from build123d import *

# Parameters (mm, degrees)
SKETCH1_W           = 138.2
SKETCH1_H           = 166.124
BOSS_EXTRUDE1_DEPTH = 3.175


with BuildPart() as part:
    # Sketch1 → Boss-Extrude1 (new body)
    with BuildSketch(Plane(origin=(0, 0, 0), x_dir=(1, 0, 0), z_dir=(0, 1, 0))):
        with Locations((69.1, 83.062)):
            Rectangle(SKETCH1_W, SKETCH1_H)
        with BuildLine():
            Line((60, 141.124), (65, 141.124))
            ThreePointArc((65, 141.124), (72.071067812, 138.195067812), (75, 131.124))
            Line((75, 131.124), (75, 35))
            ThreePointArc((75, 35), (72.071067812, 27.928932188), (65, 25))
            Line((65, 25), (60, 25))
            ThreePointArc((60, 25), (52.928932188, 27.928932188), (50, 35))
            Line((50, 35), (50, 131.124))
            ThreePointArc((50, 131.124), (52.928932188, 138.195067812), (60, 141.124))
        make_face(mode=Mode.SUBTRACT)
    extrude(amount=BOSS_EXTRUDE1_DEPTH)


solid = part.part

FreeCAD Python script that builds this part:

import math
import FreeCAD as App
import Part
import Sketcher
from FreeCAD import Vector
Q = App.Units.Quantity

doc = App.newDocument("Part")
body = doc.addObject("PartDesign::Body", "Body")

sketch1 = body.newObject("Sketcher::SketchObject", "Sketch")
sketch1.AttachmentSupport = (doc.getObject("XZ_Plane"), [""])
sketch1.MapMode = "FlatFace"
sketch1.addGeometry([
    Part.LineSegment(Vector(0, -166.124, 0), Vector(0, 0, 0)),
    Part.LineSegment(Vector(0, 0, 0), Vector(138.2, 0, 0)),
    Part.LineSegment(Vector(138.2, 0, 0), Vector(138.2, -166.124, 0)),
    Part.LineSegment(Vector(138.2, -166.124, 0), Vector(0, -166.124, 0)),
    Part.ArcOfCircle(Part.Circle(Vector(60, -131.124, 0), Vector(0, 0, 1), 10), math.radians(180), math.radians(270)),
    Part.LineSegment(Vector(60, -141.124, 0), Vector(65, -141.124, 0)),
    Part.ArcOfCircle(Part.Circle(Vector(65, -131.124, 0), Vector(0, 0, 1), 10), math.radians(-90), math.radians(0)),
    Part.LineSegment(Vector(75, -131.124, 0), Vector(75, -35, 0)),
    Part.ArcOfCircle(Part.Circle(Vector(65, -35, 0), Vector(0, 0, 1), 10), math.radians(0), math.radians(90)),
    Part.LineSegment(Vector(65, -25, 0), Vector(60, -25, 0)),
    Part.ArcOfCircle(Part.Circle(Vector(60, -35, 0), Vector(0, 0, 1), 10), math.radians(90), math.radians(180)),
    Part.LineSegment(Vector(50, -35, 0), Vector(50, -131.124, 0)),
], False)
sketch1.addConstraint([
    Sketcher.Constraint("Coincident", 0, 2, 1, 1),
    Sketcher.Constraint("Coincident", 1, 2, 2, 1),
    Sketcher.Constraint("Coincident", 2, 2, 3, 1),
    Sketcher.Constraint("Coincident", 3, 2, 0, 1),
    Sketcher.Constraint("Tangent", 4, 2, 5, 1),
    Sketcher.Constraint("Tangent", 5, 2, 6, 1),
    Sketcher.Constraint("Tangent", 6, 2, 7, 1),
    Sketcher.Constraint("Tangent", 7, 2, 8, 1),
    Sketcher.Constraint("Tangent", 8, 2, 9, 1),
    Sketcher.Constraint("Tangent", 9, 2, 10, 1),
    Sketcher.Constraint("Tangent", 10, 2, 11, 1),
    Sketcher.Constraint("Tangent", 11, 2, 4, 1),
    Sketcher.Constraint("Vertical", 0),
    Sketcher.Constraint("Horizontal", 1),
    Sketcher.Constraint("Vertical", 2),
    Sketcher.Constraint("Horizontal", 3),
    Sketcher.Constraint("Horizontal", 5),
    Sketcher.Constraint("Vertical", 7),
    Sketcher.Constraint("Horizontal", 9),
    Sketcher.Constraint("Vertical", 11),
    Sketcher.Constraint("Coincident", 0, 2, -1, 1),
    Sketcher.Constraint("Equal", 4, 6),
    Sketcher.Constraint("Equal", 6, 8),
    Sketcher.Constraint("Equal", 8, 10),
    Sketcher.Constraint("Radius", 4, Q("10 mm")),
    Sketcher.Constraint("DistanceX", 5, 1, 5, 2, Q("5 mm")),
    Sketcher.Constraint("DistanceX", 1, 1, 1, 2, Q("138.2 mm")),
    Sketcher.Constraint("DistanceX", -1, 1, 4, 3, Q("60 mm")),
    Sketcher.Constraint("DistanceY", 8, 3, -1, 1, Q("35 mm")),
    Sketcher.Constraint("DistanceY", 2, 2, 6, 3, Q("35 mm")),
    Sketcher.Constraint("DistanceY", 0, 1, 0, 2, Q("166.124 mm")),
])
pad1 = body.newObject("PartDesign::Pad", "Pad")
pad1.Profile = sketch1
pad1.Length = 3.175
pad1.Reversed = True

doc.recompute()
